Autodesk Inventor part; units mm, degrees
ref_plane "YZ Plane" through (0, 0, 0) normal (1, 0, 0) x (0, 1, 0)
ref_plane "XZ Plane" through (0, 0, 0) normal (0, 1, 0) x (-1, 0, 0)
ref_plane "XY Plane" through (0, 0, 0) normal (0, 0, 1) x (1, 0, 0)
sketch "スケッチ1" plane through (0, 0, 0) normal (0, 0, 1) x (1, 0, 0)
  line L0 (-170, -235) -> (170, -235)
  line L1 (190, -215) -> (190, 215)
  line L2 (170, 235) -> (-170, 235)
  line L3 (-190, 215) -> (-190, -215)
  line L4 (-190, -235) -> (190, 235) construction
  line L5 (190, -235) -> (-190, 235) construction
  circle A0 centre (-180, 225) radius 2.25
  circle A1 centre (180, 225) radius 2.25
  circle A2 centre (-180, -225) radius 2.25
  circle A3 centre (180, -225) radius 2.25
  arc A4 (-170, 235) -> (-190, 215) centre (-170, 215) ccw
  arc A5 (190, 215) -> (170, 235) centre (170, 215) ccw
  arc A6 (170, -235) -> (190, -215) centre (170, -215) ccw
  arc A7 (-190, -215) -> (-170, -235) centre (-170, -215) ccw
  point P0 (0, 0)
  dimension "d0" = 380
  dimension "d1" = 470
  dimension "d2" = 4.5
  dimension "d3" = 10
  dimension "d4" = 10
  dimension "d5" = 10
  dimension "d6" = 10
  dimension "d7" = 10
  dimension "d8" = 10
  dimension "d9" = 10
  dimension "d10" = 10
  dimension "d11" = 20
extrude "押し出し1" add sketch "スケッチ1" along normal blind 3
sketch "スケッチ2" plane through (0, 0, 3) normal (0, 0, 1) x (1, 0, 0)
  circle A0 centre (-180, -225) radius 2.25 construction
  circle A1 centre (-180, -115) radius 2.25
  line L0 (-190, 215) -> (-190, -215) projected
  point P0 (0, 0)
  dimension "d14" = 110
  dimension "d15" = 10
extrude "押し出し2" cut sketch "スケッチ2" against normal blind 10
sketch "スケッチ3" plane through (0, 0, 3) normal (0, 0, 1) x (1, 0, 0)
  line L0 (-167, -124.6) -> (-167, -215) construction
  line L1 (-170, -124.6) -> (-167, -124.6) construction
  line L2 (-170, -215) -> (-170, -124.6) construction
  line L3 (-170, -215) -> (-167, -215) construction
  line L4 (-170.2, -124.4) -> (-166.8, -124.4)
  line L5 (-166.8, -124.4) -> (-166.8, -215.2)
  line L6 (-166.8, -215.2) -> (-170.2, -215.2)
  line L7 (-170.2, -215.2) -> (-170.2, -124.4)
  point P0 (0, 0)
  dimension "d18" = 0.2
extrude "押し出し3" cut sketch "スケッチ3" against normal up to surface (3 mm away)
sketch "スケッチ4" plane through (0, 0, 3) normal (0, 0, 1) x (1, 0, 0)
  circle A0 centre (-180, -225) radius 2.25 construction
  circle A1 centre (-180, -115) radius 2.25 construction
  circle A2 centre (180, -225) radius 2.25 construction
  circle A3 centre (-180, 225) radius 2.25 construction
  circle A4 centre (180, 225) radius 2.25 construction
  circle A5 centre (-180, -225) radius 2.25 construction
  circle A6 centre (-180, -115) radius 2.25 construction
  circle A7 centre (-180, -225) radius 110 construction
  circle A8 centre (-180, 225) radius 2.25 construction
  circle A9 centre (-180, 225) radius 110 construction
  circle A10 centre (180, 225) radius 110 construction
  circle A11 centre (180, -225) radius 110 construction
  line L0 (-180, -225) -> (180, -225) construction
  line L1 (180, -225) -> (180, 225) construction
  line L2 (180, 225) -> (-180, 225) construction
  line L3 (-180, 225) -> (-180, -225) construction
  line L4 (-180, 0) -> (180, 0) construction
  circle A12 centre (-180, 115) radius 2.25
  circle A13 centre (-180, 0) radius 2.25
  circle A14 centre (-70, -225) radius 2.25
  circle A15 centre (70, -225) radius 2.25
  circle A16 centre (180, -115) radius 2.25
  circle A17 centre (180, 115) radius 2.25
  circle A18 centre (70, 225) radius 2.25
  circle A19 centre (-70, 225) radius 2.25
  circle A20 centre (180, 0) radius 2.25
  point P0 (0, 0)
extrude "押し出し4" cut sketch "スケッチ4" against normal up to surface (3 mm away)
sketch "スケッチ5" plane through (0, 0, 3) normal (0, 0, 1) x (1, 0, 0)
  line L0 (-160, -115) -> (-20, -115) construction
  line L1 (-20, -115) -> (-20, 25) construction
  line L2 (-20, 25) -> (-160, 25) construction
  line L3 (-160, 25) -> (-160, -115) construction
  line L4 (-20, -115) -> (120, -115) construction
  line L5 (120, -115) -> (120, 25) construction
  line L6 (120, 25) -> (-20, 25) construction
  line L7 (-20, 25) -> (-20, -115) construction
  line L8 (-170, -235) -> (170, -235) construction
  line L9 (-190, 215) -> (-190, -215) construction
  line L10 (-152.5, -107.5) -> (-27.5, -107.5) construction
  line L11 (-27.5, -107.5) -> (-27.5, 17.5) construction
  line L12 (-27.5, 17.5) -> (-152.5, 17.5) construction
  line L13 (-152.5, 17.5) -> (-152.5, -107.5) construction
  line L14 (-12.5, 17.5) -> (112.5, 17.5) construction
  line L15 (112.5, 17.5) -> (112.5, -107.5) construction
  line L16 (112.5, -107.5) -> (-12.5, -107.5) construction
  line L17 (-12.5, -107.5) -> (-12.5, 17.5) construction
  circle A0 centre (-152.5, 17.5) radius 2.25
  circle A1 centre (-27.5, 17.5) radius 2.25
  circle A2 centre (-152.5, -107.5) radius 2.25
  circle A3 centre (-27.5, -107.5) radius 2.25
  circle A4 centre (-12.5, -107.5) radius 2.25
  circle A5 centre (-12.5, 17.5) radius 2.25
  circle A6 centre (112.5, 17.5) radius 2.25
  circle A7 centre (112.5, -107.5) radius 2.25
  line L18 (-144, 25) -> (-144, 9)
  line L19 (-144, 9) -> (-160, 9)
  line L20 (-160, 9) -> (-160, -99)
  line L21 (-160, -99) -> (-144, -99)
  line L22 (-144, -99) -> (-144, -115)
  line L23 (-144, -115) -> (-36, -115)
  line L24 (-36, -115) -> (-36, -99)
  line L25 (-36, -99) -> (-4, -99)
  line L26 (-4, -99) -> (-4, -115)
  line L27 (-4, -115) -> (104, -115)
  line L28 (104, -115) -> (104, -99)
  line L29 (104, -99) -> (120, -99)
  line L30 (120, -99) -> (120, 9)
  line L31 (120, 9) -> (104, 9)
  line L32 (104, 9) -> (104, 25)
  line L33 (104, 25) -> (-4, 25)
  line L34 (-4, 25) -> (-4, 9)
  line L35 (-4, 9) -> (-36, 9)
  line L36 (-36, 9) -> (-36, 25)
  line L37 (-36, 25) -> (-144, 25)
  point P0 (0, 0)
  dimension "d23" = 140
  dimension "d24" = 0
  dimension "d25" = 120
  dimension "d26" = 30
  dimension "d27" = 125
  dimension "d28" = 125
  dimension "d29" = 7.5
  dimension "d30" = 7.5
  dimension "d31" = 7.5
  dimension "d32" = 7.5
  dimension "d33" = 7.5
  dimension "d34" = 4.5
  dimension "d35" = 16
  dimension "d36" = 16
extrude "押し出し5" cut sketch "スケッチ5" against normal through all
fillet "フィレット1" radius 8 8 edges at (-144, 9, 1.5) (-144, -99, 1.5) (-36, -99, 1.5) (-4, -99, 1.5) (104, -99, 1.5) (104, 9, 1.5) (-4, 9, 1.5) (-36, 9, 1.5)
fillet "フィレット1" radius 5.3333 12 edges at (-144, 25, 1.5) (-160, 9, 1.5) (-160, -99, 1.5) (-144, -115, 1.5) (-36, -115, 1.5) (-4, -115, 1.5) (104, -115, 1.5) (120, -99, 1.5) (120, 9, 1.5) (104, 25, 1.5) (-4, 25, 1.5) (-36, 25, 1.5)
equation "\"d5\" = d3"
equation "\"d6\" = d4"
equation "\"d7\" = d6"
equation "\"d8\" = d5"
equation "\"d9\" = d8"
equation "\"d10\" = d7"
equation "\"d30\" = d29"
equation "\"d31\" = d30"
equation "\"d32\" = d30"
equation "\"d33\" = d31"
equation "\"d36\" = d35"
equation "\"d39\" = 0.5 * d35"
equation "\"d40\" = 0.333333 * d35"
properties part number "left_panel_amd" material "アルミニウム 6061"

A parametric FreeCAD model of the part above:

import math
import FreeCAD as App
import Part
import Sketcher
from FreeCAD import Vector


def edges_at(feature, points):
    """Names of the edges that pass closest to the given points."""
    edges = feature.Shape.Edges
    near = lambda p: min(range(len(edges)), key=lambda i: edges[i].distToShape(Part.Vertex(*p))[0])
    return sorted({f"Edge{near(p) + 1}" for p in points})

doc = App.newDocument("Part")
body = doc.addObject("PartDesign::Body", "Body")

sketch1 = body.newObject("Sketcher::SketchObject", "Sketch")
sketch1.AttachmentSupport = (doc.getObject("XY_Plane"), [""])
sketch1.MapMode = "FlatFace"
sketch1.addGeometry(Part.ArcOfCircle(Part.Circle(Vector(-170, -215, 0), Vector(0, 0, 1), 20), math.radians(180), math.radians(270)), False)
sketch1.addGeometry(Part.LineSegment(Vector(-170, -235, 0), Vector(170, -235, 0)), False)
sketch1.addGeometry(Part.ArcOfCircle(Part.Circle(Vector(170, -215, 0), Vector(0, 0, 1), 20), math.radians(-90), math.radians(0)), False)
sketch1.addGeometry(Part.LineSegment(Vector(190, -215, 0), Vector(190, 215, 0)), False)
sketch1.addGeometry(Part.ArcOfCircle(Part.Circle(Vector(170, 215, 0), Vector(0, 0, 1), 20), math.radians(0), math.radians(90)), False)
sketch1.addGeometry(Part.LineSegment(Vector(170, 235, 0), Vector(-170, 235, 0)), False)
sketch1.addGeometry(Part.ArcOfCircle(Part.Circle(Vector(-170, 215, 0), Vector(0, 0, 1), 20), math.radians(90), math.radians(180)), False)
sketch1.addGeometry(Part.LineSegment(Vector(-190, 215, 0), Vector(-190, -215, 0)), False)
sketch1.addGeometry(Part.Circle(Vector(-180, -225, 0), Vector(0, 0, 1), 2.25), False)
sketch1.addGeometry(Part.Circle(Vector(180, -225, 0), Vector(0, 0, 1), 2.25), False)
sketch1.addGeometry(Part.Circle(Vector(-180, 225, 0), Vector(0, 0, 1), 2.25), False)
sketch1.addGeometry(Part.Circle(Vector(180, 225, 0), Vector(0, 0, 1), 2.25), False)
sketch1.addConstraint(Sketcher.Constraint("Tangent", 0, 2, 1, 1))
sketch1.addConstraint(Sketcher.Constraint("Tangent", 1, 2, 2, 1))
sketch1.addConstraint(Sketcher.Constraint("Tangent", 2, 2, 3, 1))
sketch1.addConstraint(Sketcher.Constraint("Tangent", 3, 2, 4, 1))
sketch1.addConstraint(Sketcher.Constraint("Tangent", 4, 2, 5, 1))
sketch1.addConstraint(Sketcher.Constraint("Tangent", 5, 2, 6, 1))
sketch1.addConstraint(Sketcher.Constraint("Tangent", 6, 2, 7, 1))
sketch1.addConstraint(Sketcher.Constraint("Tangent", 7, 2, 0, 1))
sketch1.addConstraint(Sketcher.Constraint("Horizontal", 1))
sketch1.addConstraint(Sketcher.Constraint("Vertical", 3))
sketch1.addConstraint(Sketcher.Constraint("Horizontal", 5))
sketch1.addConstraint(Sketcher.Constraint("Vertical", 7))
sketch1.addConstraint(Sketcher.Constraint("Equal", 0, 2))
sketch1.addConstraint(Sketcher.Constraint("Equal", 2, 4))
sketch1.addConstraint(Sketcher.Constraint("Equal", 4, 6))
sketch1.addConstraint(Sketcher.Constraint("Equal", 8, 9))
sketch1.addConstraint(Sketcher.Constraint("Equal", 9, 10))
sketch1.addConstraint(Sketcher.Constraint("Equal", 10, 11))
sketch1.addConstraint(Sketcher.Constraint("Symmetric", 0, 3, 4, 3, -1, 1))
sketch1.addConstraint(Sketcher.Constraint("Symmetric", 9, 3, 10, 3, -1, 1))
sketch1.addConstraint(Sketcher.Constraint("Symmetric", 8, 3, 11, 3, -1, 1))
sketch1.addConstraint(Sketcher.Constraint("Symmetric", 8, 3, 9, 3, -2))
sketch1.addConstraint(Sketcher.Constraint("Radius", 0, 20.0))
sketch1.addConstraint(Sketcher.Constraint("Diameter", 8, 4.5))
sketch1.addConstraint(Sketcher.Constraint("DistanceX", 8, 3, 0, 3, 10.0))
sketch1.addConstraint(Sketcher.Constraint("DistanceY", 8, 3, 0, 3, 10.0))
sketch1.addConstraint(Sketcher.Constraint("DistanceX", 1, 1, 1, 2, 340.0))
sketch1.addConstraint(Sketcher.Constraint("DistanceY", 3, 1, 3, 2, 430.0))
pad1 = body.newObject("PartDesign::Pad", "Pad")
pad1.Profile = sketch1
pad1.Length = 3

sketch2 = body.newObject("Sketcher::SketchObject", "Sketch001")
sketch2.AttachmentSupport = (doc.getObject("XY_Plane"), [""])
sketch2.MapMode = "FlatFace"
sketch2.AttachmentOffset = App.Placement(Vector(0, 0, 3), App.Rotation())
sketch2.addGeometry(Part.Circle(Vector(-180, -115, 0), Vector(0, 0, 1), 2.25), False)
sketch2.addConstraint(Sketcher.Constraint("Diameter", 0, 4.5))
sketch2.addConstraint(Sketcher.Constraint("DistanceX", 0, 3, -1, 1, 180.0))
sketch2.addConstraint(Sketcher.Constraint("DistanceY", 0, 3, -1, 1, 115.0))
pocket1 = body.newObject("PartDesign::Pocket", "Pocket")
pocket1.Profile = sketch2
pocket1.Length = 10

sketch3 = body.newObject("Sketcher::SketchObject", "Sketch002")
sketch3.AttachmentSupport = (doc.getObject("XY_Plane"), [""])
sketch3.MapMode = "FlatFace"
sketch3.AttachmentOffset = App.Placement(Vector(0, 0, 3), App.Rotation())
sketch3.addGeometry(Part.LineSegment(Vector(-166.8, -124.4, 0), Vector(-170.2, -124.4, 0)), False)
sketch3.addGeometry(Part.LineSegment(Vector(-170.2, -124.4, 0), Vector(-170.2, -215.2, 0)), False)
sketch3.addGeometry(Part.LineSegment(Vector(-170.2, -215.2, 0), Vector(-166.8, -215.2, 0)), False)
sketch3.addGeometry(Part.LineSegment(Vector(-166.8, -215.2, 0), Vector(-166.8, -124.4, 0)), False)
sketch3.addConstraint(Sketcher.Constraint("Coincident", 0, 2, 1, 1))
sketch3.addConstraint(Sketcher.Constraint("Coincident", 1, 2, 2, 1))
sketch3.addConstraint(Sketcher.Constraint("Coincident", 2, 2, 3, 1))
sketch3.addConstraint(Sketcher.Constraint("Coincident", 3, 2, 0, 1))
sketch3.addConstraint(Sketcher.Constraint("Horizontal", 0))
sketch3.addConstraint(Sketcher.Constraint("Vertical", 1))
sketch3.addConstraint(Sketcher.Constraint("Horizontal", 2))
sketch3.addConstraint(Sketcher.Constraint("Vertical", 3))
sketch3.addConstraint(Sketcher.Constraint("DistanceX", 0, 2, 0, 1, 3.4))
sketch3.addConstraint(Sketcher.Constraint("DistanceY", 1, 2, 1, 1, 90.8))
sketch3.addConstraint(Sketcher.Constraint("DistanceX", 0, 2, -1, 1, 170.2))
sketch3.addConstraint(Sketcher.Constraint("DistanceY", 0, 2, -1, 1, 124.4))
pocket2 = body.newObject("PartDesign::Pocket", "Pocket001")
pocket2.Profile = sketch3
pocket2.Length = 3

sketch4 = body.newObject("Sketcher::SketchObject", "Sketch003")
sketch4.AttachmentSupport = (doc.getObject("XY_Plane"), [""])
sketch4.MapMode = "FlatFace"
sketch4.AttachmentOffset = App.Placement(Vector(0, 0, 3), App.Rotation())
sketch4.addGeometry(Part.Circle(Vector(-180, 115, 0), Vector(0, 0, 1), 2.25), False)
sketch4.addGeometry(Part.Circle(Vector(-180, 0, 0), Vector(0, 0, 1), 2.25), False)
sketch4.addGeometry(Part.Circle(Vector(-70, -225, 0), Vector(0, 0, 1), 2.25), False)
sketch4.addGeometry(Part.Circle(Vector(70, -225, 0), Vector(0, 0, 1), 2.25), False)
sketch4.addGeometry(Part.Circle(Vector(180, -115, 0), Vector(0, 0, 1), 2.25), False)
sketch4.addGeometry(Part.Circle(Vector(180, 115, 0), Vector(0, 0, 1), 2.25), False)
sketch4.addGeometry(Part.Circle(Vector(70, 225, 0), Vector(0, 0, 1), 2.25), False)
sketch4.addGeometry(Part.Circle(Vector(-70, 225, 0), Vector(0, 0, 1), 2.25), False)
sketch4.addGeometry(Part.Circle(Vector(180, 0, 0), Vector(0, 0, 1), 2.25), False)
sketch4.addConstraint(Sketcher.Constraint("Equal", 0, 1))
sketch4.addConstraint(Sketcher.Constraint("Equal", 1, 2))
sketch4.addConstraint(Sketcher.Constraint("Equal", 2, 3))
sketch4.addConstraint(Sketcher.Constraint("Equal", 3, 4))
sketch4.addConstraint(Sketcher.Constraint("Equal", 4, 5))
sketch4.addConstraint(Sketcher.Constraint("Equal", 5, 6))
sketch4.addConstraint(Sketcher.Constraint("Equal", 6, 7))
sketch4.addConstraint(Sketcher.Constraint("Equal", 7, 8))
sketch4.addConstraint(Sketcher.Constraint("Symmetric", 0, 3, 4, 3, -1, 1))
sketch4.addConstraint(Sketcher.Constraint("Symmetric", 2, 3, 6, 3, -1, 1))
sketch4.addConstraint(Sketcher.Constraint("Symmetric", 3, 3, 7, 3, -1, 1))
sketch4.addConstraint(Sketcher.Constraint("Symmetric", 1, 3, 8, 3, -1, 1))
sketch4.addConstraint(Sketcher.Constraint("Symmetric", 2, 3, 3, 3, -2))
sketch4.addConstraint(Sketcher.Constraint("Symmetric", 0, 3, 5, 3, -2))
sketch4.addConstraint(Sketcher.Constraint("PointOnObject", 1, 3, -1))
sketch4.addConstraint(Sketcher.Constraint("Vertical", 0, 3, 1, 3))
sketch4.addConstraint(Sketcher.Constraint("Diameter", 0, 4.5))
sketch4.addConstraint(Sketcher.Constraint("DistanceX", 0, 3, -1, 1, 180.0))
sketch4.addConstraint(Sketcher.Constraint("DistanceY", -1, 1, 0, 3, 115.0))
sketch4.addConstraint(Sketcher.Constraint("DistanceX", 2, 3, -1, 1, 70.0))
sketch4.addConstraint(Sketcher.Constraint("DistanceY", 2, 3, -1, 1, 225.0))
pocket3 = body.newObject("PartDesign::Pocket", "Pocket002")
pocket3.Profile = sketch4
pocket3.Length = 3

sketch5 = body.newObject("Sketcher::SketchObject", "Sketch004")
sketch5.AttachmentSupport = (doc.getObject("XY_Plane"), [""])
sketch5.MapMode = "FlatFace"
sketch5.AttachmentOffset = App.Placement(Vector(0, 0, 3), App.Rotation())
sketch5.addGeometry(Part.Circle(Vector(-152.5, 17.5, 0), Vector(0, 0, 1), 2.25), False)
sketch5.addGeometry(Part.Circle(Vector(-27.5, 17.5, 0), Vector(0, 0, 1), 2.25), False)
sketch5.addGeometry(Part.Circle(Vector(-152.5, -107.5, 0), Vector(0, 0, 1), 2.25), False)
sketch5.addGeometry(Part.Circle(Vector(-27.5, -107.5, 0), Vector(0, 0, 1), 2.25), False)
sketch5.addGeometry(Part.Circle(Vector(-12.5, -107.5, 0), Vector(0, 0, 1), 2.25), False)
sketch5.addGeometry(Part.Circle(Vector(-12.5, 17.5, 0), Vector(0, 0, 1), 2.25), False)
sketch5.addGeometry(Part.Circle(Vector(112.5, 17.5, 0), Vector(0, 0, 1), 2.25), False)
sketch5.addGeometry(Part.Circle(Vector(112.5, -107.5, 0), Vector(0, 0, 1), 2.25), False)
sketch5.addGeometry(Part.LineSegment(Vector(-36, 25, 0), Vector(-144, 25, 0)), False)
sketch5.addGeometry(Part.LineSegment(Vector(-144, 25, 0), Vector(-144, 9, 0)), False)
sketch5.addGeometry(Part.LineSegment(Vector(-144, 9, 0), Vector(-160, 9, 0)), False)
sketch5.addGeometry(Part.LineSegment(Vector(-160, 9, 0), Vector(-160, -99, 0)), False)
sketch5.addGeometry(Part.LineSegment(Vector(-160, -99, 0), Vector(-144, -99, 0)), False)
sketch5.addGeometry(Part.LineSegment(Vector(-144, -99, 0), Vector(-144, -115, 0)), False)
sketch5.addGeometry(Part.LineSegment(Vector(-144, -115, 0), Vector(-36, -115, 0)), False)
sketch5.addGeometry(Part.LineSegment(Vector(-36, -115, 0), Vector(-36, -99, 0)), False)
sketch5.addGeometry(Part.LineSegment(Vector(-36, -99, 0), Vector(-4, -99, 0)), False)
sketch5.addGeometry(Part.LineSegment(Vector(-4, -99, 0), Vector(-4, -115, 0)), False)
sketch5.addGeometry(Part.LineSegment(Vector(-4, -115, 0), Vector(104, -115, 0)), False)
sketch5.addGeometry(Part.LineSegment(Vector(104, -115, 0), Vector(104, -99, 0)), False)
sketch5.addGeometry(Part.LineSegment(Vector(104, -99, 0), Vector(120, -99, 0)), False)
sketch5.addGeometry(Part.LineSegment(Vector(120, -99, 0), Vector(120, 9, 0)), False)
sketch5.addGeometry(Part.LineSegment(Vector(120, 9, 0), Vector(104, 9, 0)), False)
sketch5.addGeometry(Part.LineSegment(Vector(104, 9, 0), Vector(104, 25, 0)), False)
sketch5.addGeometry(Part.LineSegment(Vector(104, 25, 0), Vector(-4, 25, 0)), False)
sketch5.addGeometry(Part.LineSegment(Vector(-4, 25, 0), Vector(-4, 9, 0)), False)
sketch5.addGeometry(Part.LineSegment(Vector(-4, 9, 0), Vector(-36, 9, 0)), False)
sketch5.addGeometry(Part.LineSegment(Vector(-36, 9, 0), Vector(-36, 25, 0)), False)
sketch5.addConstraint(Sketcher.Constraint("Coincident", 8, 2, 9, 1))
sketch5.addConstraint(Sketcher.Constraint("Coincident", 9, 2, 10, 1))
sketch5.addConstraint(Sketcher.Constraint("Coincident", 10, 2, 11, 1))
sketch5.addConstraint(Sketcher.Constraint("Coincident", 11, 2, 12, 1))
sketch5.addConstraint(Sketcher.Constraint("Coincident", 12, 2, 13, 1))
sketch5.addConstraint(Sketcher.Constraint("Coincident", 13, 2, 14, 1))
sketch5.addConstraint(Sketcher.Constraint("Coincident", 14, 2, 15, 1))
sketch5.addConstraint(Sketcher.Constraint("Coincident", 15, 2, 16, 1))
sketch5.addConstraint(Sketcher.Constraint("Coincident", 16, 2, 17, 1))
sketch5.addConstraint(Sketcher.Constraint("Coincident", 17, 2, 18, 1))
sketch5.addConstraint(Sketcher.Constraint("Coincident", 18, 2, 19, 1))
sketch5.addConstraint(Sketcher.Constraint("Coincident", 19, 2, 20, 1))
sketch5.addConstraint(Sketcher.Constraint("Coincident", 20, 2, 21, 1))
sketch5.addConstraint(Sketcher.Constraint("Coincident", 21, 2, 22, 1))
sketch5.addConstraint(Sketcher.Constraint("Coincident", 22, 2, 23, 1))
sketch5.addConstraint(Sketcher.Constraint("Coincident", 23, 2, 24, 1))
sketch5.addConstraint(Sketcher.Constraint("Coincident", 24, 2, 25, 1))
sketch5.addConstraint(Sketcher.Constraint("Coincident", 25, 2, 26, 1))
sketch5.addConstraint(Sketcher.Constraint("Coincident", 26, 2, 27, 1))
sketch5.addConstraint(Sketcher.Constraint("Coincident", 27, 2, 8, 1))
sketch5.addConstraint(Sketcher.Constraint("Horizontal", 8))
sketch5.addConstraint(Sketcher.Constraint("Vertical", 9))
sketch5.addConstraint(Sketcher.Constraint("Horizontal", 10))
sketch5.addConstraint(Sketcher.Constraint("Vertical", 11))
sketch5.addConstraint(Sketcher.Constraint("Horizontal", 12))
sketch5.addConstraint(Sketcher.Constraint("Vertical", 13))
sketch5.addConstraint(Sketcher.Constraint("Horizontal", 14))
sketch5.addConstraint(Sketcher.Constraint("Vertical", 15))
sketch5.addConstraint(Sketcher.Constraint("Horizontal", 16))
sketch5.addConstraint(Sketcher.Constraint("Vertical", 17))
sketch5.addConstraint(Sketcher.Constraint("Horizontal", 18))
sketch5.addConstraint(Sketcher.Constraint("Vertical", 19))
sketch5.addConstraint(Sketcher.Constraint("Horizontal", 20))
sketch5.addConstraint(Sketcher.Constraint("Vertical", 21))
sketch5.addConstraint(Sketcher.Constraint("Horizontal", 22))
sketch5.addConstraint(Sketcher.Constraint("Vertical", 23))
sketch5.addConstraint(Sketcher.Constraint("Horizontal", 24))
sketch5.addConstraint(Sketcher.Constraint("Vertical", 25))
sketch5.addConstraint(Sketcher.Constraint("Horizontal", 26))
sketch5.addConstraint(Sketcher.Constraint("Vertical", 27))
sketch5.addConstraint(Sketcher.Constraint("Equal", 0, 1))
sketch5.addConstraint(Sketcher.Constraint("Equal", 1, 2))
sketch5.addConstraint(Sketcher.Constraint("Equal", 2, 3))
sketch5.addConstraint(Sketcher.Constraint("Equal", 3, 4))
sketch5.addConstraint(Sketcher.Constraint("Equal", 4, 5))
sketch5.addConstraint(Sketcher.Constraint("Equal", 5, 6))
sketch5.addConstraint(Sketcher.Constraint("Equal", 6, 7))
sketch5.addConstraint(Sketcher.Constraint("Horizontal", 0, 3, 1, 3))
sketch5.addConstraint(Sketcher.Constraint("Horizontal", 2, 3, 3, 3))
sketch5.addConstraint(Sketcher.Constraint("Horizontal", 3, 3, 4, 3))
sketch5.addConstraint(Sketcher.Constraint("Horizontal", 1, 3, 5, 3))
sketch5.addConstraint(Sketcher.Constraint("Horizontal", 5, 3, 6, 3))
sketch5.addConstraint(Sketcher.Constraint("Horizontal", 4, 3, 7, 3))
sketch5.addConstraint(Sketcher.Constraint("Horizontal", 12, 2, 15, 2))
sketch5.addConstraint(Sketcher.Constraint("Horizontal", 14, 2, 17, 2))
sketch5.addConstraint(Sketcher.Constraint("Horizontal", 16, 2, 19, 2))
sketch5.addConstraint(Sketcher.Constraint("Horizontal", 10, 2, 21, 2))
sketch5.addConstraint(Sketcher.Constraint("Horizontal", 8, 2, 23, 2))
sketch5.addConstraint(Sketcher.Constraint("Horizontal", 22, 2, 25, 2))
sketch5.addConstraint(Sketcher.Constraint("Vertical", 0, 3, 2, 3))
sketch5.addConstraint(Sketcher.Constraint("Vertical", 1, 3, 3, 3))
sketch5.addConstraint(Sketcher.Constraint("Vertical", 4, 3, 5, 3))
sketch5.addConstraint(Sketcher.Constraint("Vertical", 6, 3, 7, 3))
sketch5.addConstraint(Sketcher.Constraint("Vertical", 9, 2, 12, 2))
sketch5.addConstraint(Sketcher.Constraint("Vertical", 19, 2, 22, 2))
sketch5.addConstraint(Sketcher.Constraint("Vertical", 17, 2, 24, 2))
sketch5.addConstraint(Sketcher.Constraint("Vertical", 15, 2, 26, 2))
sketch5.addConstraint(Sketcher.Constraint("Equal", 14, 18))
sketch5.addConstraint(Sketcher.Constraint("Equal", 12, 20))
sketch5.addConstraint(Sketcher.Constraint("Equal", 22, 9))
sketch5.addConstraint(Sketcher.Constraint("Equal", 24, 11))
sketch5.addConstraint(Sketcher.Constraint("Equal", 9, 13))
sketch5.addConstraint(Sketcher.Constraint("Diameter", 0, 4.5))
sketch5.addConstraint(Sketcher.Constraint("DistanceX", 10, 2, 10, 1, 16.0))
sketch5.addConstraint(Sketcher.Constraint("DistanceX", -1, 1, 20, 2, 120.0))
sketch5.addConstraint(Sketcher.Constraint("DistanceX", 0, 3, 1, 3, 125.0))
sketch5.addConstraint(Sketcher.Constraint("DistanceY", 2, 3, 0, 3, 125.0))
sketch5.addConstraint(Sketcher.Constraint("DistanceX", 2, 3, 4, 3, 140.0))
sketch5.addConstraint(Sketcher.Constraint("DistanceX", 5, 3, 6, 3, 125.0))
sketch5.addConstraint(Sketcher.Constraint("DistanceY", 0, 3, 8, 2, 7.5))
sketch5.addConstraint(Sketcher.Constraint("DistanceX", 10, 2, 0, 3, 7.5))
sketch5.addConstraint(Sketcher.Constraint("DistanceY", 13, 2, 2, 3, 7.5))
sketch5.addConstraint(Sketcher.Constraint("DistanceX", 7, 3, 20, 2, 7.5))
sketch5.addConstraint(Sketcher.Constraint("DistanceY", -1, 1, 8, 2, 25.0))
pocket4 = body.newObject("PartDesign::Pocket", "Pocket003")
pocket4.Profile = sketch5
pocket4.Type = "ThroughAll"
doc.recompute()

fillet = body.newObject("PartDesign::Fillet", "Fillet")
fillet.Base = (pocket4, edges_at(pocket4, [
    (-144, 9, 1.5),
    (-144, -99, 1.5),
    (-36, -99, 1.5),
    (-4, -99, 1.5),
    (104, -99, 1.5),
    (104, 9, 1.5),
    (-4, 9, 1.5),
    (-36, 9, 1.5),
]))
fillet.Radius = 8
doc.recompute()

fillet2 = body.newObject("PartDesign::Fillet", "Fillet001")
fillet2.Base = (fillet, edges_at(fillet, [
    (-144, 25, 1.5),
    (-160, 9, 1.5),
    (-160, -99, 1.5),
    (-144, -115, 1.5),
    (-36, -115, 1.5),
    (-4, -115, 1.5),
    (104, -115, 1.5),
    (120, -99, 1.5),
    (120, 9, 1.5),
    (104, 25, 1.5),
    (-4, 25, 1.5),
    (-36, 25, 1.5),
]))
fillet2.Radius = 5.3333

doc.recompute()
